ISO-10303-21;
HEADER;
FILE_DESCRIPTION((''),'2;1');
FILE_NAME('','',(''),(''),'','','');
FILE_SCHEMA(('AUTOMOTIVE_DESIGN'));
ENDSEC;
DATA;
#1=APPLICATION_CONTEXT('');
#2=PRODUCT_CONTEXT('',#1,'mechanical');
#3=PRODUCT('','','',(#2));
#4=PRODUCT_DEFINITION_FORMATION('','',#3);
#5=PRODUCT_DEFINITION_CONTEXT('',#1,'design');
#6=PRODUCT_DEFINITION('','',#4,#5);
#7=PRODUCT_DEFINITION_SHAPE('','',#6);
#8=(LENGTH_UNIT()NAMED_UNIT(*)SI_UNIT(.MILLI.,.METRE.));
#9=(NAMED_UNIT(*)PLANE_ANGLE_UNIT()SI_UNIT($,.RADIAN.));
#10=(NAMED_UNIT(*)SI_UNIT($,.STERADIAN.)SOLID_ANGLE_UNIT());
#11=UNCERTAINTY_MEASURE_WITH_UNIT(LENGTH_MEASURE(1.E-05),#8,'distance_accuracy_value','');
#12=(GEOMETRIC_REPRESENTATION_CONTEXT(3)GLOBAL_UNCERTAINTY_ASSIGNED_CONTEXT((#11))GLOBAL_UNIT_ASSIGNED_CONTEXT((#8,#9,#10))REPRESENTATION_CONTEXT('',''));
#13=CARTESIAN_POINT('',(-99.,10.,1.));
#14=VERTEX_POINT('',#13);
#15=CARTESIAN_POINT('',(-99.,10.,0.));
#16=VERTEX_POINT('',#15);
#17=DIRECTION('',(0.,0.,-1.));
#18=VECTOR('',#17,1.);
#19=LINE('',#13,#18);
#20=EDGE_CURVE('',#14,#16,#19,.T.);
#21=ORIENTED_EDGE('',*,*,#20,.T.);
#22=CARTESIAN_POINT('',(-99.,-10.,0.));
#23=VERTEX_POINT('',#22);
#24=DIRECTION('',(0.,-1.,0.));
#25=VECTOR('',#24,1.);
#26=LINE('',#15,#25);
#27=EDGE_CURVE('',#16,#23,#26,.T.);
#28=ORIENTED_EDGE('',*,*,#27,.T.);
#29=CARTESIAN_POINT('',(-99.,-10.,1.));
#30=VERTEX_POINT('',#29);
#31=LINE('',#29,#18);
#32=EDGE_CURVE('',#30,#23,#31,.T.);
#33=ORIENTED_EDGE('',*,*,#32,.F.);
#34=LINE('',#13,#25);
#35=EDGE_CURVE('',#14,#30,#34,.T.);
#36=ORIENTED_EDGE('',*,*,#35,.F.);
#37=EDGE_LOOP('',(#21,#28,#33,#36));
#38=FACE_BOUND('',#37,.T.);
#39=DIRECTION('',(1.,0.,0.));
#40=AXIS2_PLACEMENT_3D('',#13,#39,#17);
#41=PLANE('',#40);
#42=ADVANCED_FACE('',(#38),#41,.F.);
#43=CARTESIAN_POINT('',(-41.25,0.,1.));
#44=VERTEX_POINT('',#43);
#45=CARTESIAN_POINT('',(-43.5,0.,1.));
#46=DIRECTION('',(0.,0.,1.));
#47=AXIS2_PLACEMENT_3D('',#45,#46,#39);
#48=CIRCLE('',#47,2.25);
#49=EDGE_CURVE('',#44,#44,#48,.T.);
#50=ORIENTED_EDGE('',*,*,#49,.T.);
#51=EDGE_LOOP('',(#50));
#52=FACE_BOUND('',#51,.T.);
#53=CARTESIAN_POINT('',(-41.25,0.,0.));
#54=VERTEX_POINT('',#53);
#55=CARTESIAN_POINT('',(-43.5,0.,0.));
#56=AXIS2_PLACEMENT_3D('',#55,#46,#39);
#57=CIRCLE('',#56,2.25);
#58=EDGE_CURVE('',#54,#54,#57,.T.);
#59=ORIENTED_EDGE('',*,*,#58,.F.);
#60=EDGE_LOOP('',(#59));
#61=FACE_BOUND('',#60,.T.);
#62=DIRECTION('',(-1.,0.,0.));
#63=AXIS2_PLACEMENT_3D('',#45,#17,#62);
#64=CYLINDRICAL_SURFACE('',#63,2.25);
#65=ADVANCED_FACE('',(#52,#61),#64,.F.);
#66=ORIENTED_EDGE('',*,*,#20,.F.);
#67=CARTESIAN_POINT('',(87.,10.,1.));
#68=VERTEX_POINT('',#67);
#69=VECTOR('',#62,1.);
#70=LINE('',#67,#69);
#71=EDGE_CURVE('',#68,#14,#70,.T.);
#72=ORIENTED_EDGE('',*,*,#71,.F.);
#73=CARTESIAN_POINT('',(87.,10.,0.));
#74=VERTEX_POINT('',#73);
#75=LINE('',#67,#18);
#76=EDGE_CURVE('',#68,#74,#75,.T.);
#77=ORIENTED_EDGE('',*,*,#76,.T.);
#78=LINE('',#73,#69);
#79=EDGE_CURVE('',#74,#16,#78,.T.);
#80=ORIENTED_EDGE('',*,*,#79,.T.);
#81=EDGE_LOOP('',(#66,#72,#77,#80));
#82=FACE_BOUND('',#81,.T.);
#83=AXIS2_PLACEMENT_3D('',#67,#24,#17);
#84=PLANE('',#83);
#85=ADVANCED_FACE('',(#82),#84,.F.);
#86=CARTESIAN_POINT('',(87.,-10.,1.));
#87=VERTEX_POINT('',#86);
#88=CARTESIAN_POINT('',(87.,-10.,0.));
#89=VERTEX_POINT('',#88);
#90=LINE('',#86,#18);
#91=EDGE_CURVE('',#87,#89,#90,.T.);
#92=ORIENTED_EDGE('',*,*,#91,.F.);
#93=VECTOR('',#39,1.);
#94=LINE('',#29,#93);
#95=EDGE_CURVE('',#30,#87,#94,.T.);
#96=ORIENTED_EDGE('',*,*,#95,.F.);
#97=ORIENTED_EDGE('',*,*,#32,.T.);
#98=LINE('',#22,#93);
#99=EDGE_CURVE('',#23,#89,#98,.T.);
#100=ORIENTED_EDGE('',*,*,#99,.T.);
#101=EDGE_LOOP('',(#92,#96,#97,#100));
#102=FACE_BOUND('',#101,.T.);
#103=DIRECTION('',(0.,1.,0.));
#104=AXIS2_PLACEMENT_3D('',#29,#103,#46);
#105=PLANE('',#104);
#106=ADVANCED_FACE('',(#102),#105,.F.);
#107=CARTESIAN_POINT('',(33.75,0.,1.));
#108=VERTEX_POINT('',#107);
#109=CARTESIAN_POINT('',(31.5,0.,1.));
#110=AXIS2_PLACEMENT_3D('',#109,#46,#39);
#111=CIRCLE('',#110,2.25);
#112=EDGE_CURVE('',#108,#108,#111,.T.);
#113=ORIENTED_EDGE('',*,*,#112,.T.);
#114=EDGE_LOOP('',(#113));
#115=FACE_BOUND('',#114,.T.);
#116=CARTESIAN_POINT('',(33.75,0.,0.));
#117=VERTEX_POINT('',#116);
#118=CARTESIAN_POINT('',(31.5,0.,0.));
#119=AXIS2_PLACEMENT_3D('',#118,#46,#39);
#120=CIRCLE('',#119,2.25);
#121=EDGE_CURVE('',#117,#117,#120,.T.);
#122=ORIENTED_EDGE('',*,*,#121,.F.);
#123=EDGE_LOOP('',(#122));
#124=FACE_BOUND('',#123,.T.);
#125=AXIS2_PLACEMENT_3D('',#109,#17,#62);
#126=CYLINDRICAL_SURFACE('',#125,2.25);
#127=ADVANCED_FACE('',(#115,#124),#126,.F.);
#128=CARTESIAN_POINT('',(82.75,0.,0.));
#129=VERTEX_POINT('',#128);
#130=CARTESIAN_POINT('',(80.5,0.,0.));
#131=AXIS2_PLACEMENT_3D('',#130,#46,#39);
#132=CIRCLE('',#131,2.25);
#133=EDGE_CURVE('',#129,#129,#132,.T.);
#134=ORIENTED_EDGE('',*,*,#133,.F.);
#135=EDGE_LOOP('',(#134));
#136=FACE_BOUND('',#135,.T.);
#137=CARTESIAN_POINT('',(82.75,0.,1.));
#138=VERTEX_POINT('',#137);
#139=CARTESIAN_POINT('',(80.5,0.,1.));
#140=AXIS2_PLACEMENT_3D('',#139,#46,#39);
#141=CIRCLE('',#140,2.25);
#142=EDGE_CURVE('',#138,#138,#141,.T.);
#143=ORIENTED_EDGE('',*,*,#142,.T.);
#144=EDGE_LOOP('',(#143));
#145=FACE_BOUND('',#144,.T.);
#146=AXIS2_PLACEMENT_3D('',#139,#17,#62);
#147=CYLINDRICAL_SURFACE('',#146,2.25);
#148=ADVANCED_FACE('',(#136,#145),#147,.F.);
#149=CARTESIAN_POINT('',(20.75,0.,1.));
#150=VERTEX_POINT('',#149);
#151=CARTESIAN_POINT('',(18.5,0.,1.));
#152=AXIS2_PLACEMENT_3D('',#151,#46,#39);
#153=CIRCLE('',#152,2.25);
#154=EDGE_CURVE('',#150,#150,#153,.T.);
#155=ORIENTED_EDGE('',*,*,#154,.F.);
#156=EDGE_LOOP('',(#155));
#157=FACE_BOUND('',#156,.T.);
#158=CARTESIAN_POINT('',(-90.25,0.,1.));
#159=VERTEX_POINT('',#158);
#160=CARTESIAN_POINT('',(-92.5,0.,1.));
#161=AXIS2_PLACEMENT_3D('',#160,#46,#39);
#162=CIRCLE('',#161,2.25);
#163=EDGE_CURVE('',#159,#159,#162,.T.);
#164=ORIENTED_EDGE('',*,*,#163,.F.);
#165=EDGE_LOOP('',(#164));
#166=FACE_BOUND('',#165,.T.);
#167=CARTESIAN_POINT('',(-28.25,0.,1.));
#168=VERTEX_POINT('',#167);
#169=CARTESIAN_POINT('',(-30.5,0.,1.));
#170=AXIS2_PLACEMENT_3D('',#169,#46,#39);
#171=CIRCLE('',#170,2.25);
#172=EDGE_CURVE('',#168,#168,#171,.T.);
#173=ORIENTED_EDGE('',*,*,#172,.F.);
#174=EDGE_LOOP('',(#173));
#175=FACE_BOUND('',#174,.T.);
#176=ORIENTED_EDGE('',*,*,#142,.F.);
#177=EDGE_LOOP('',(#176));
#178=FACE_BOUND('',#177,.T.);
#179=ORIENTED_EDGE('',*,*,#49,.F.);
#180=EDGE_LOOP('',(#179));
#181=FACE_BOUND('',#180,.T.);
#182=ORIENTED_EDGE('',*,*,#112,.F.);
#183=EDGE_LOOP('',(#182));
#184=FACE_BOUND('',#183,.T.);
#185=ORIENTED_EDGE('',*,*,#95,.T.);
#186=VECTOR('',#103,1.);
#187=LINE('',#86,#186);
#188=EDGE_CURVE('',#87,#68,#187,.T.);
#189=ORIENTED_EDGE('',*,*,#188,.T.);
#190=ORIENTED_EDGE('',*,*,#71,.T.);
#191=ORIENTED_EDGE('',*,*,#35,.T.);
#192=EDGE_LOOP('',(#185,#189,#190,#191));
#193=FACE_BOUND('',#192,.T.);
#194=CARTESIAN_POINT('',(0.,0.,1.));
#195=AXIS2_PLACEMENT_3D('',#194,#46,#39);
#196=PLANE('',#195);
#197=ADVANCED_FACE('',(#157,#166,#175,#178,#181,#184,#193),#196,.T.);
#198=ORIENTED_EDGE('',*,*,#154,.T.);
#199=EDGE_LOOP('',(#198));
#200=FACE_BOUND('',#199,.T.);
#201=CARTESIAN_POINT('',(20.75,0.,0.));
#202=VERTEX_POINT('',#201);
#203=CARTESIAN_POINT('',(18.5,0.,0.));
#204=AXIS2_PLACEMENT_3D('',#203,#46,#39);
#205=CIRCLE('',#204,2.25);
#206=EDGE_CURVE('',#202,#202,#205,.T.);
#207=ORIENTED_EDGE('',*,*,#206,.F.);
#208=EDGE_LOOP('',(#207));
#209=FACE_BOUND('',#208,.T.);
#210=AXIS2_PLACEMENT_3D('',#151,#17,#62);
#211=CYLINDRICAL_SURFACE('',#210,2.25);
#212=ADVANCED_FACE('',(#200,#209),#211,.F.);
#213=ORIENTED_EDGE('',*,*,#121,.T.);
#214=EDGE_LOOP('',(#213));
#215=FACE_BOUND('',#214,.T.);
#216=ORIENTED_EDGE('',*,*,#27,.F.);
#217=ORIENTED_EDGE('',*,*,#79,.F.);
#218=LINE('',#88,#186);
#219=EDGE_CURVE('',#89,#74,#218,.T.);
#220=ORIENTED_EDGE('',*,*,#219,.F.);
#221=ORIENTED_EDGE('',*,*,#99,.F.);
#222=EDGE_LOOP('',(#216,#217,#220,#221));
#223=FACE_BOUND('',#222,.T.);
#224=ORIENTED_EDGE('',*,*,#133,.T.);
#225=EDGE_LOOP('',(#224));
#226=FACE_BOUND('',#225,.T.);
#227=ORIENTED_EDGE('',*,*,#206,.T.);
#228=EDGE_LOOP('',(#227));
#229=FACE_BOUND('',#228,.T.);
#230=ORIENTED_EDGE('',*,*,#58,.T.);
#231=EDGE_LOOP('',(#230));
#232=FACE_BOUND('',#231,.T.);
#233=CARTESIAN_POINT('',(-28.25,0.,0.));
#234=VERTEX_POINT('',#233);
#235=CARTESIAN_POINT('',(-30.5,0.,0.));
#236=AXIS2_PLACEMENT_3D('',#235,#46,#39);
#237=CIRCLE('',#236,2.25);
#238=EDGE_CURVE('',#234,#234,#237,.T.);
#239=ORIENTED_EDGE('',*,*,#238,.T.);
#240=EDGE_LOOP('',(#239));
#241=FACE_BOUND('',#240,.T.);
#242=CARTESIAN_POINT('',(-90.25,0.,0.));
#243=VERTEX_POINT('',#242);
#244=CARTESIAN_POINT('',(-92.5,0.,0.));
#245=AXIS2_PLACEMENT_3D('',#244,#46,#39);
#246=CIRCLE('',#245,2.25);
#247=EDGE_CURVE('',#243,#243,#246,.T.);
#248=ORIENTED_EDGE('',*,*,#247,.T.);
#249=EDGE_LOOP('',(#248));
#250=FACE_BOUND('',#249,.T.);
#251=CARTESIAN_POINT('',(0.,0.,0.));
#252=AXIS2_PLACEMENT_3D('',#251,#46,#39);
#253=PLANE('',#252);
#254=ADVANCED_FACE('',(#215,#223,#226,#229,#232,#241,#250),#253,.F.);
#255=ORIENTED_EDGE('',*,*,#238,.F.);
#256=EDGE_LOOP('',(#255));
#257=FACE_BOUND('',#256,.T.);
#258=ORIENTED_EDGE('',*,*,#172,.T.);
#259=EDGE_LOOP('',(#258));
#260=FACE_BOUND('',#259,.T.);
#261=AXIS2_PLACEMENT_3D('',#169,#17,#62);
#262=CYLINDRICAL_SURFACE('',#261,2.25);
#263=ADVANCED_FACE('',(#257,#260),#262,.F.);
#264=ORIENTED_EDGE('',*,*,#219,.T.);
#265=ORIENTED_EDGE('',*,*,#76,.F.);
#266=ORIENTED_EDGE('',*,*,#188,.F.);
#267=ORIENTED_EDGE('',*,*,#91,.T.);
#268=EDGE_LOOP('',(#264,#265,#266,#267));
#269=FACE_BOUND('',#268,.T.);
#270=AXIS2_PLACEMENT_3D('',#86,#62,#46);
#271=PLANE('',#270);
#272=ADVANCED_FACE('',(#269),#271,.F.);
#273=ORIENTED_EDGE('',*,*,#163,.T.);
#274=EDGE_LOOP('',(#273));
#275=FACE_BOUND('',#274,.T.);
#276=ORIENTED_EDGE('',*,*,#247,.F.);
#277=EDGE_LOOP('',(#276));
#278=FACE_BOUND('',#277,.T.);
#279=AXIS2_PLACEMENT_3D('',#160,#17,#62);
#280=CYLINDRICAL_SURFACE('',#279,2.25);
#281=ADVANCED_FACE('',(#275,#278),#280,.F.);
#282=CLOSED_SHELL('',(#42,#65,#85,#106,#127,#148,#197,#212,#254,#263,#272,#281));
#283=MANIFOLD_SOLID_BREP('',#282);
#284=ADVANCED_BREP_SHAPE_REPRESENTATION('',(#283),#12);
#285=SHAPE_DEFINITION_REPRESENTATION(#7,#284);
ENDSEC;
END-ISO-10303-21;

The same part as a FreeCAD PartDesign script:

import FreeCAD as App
import Part
import Sketcher
from FreeCAD import Vector
Q = App.Units.Quantity


def add_polygon(sketch, points):
    """Adds a closed chain of lines whose ends are joined by coincident constraints."""
    first, n = sketch.GeometryCount, len(points)
    for a, b in zip(points, points[1:] + points[:1]):
        sketch.addGeometry(Part.LineSegment(App.Vector(*a, 0), App.Vector(*b, 0)), False)
    for i in range(n):
        sketch.addConstraint(Sketcher.Constraint("Coincident", first + i, 2, first + (i + 1) % n, 1))

doc = App.newDocument("Part")
body = doc.addObject("PartDesign::Body", "Body")

sketch1 = body.newObject("Sketcher::SketchObject", "Sketch")
sketch1.AttachmentSupport = (doc.getObject("XY_Plane"), [""])
sketch1.MapMode = "FlatFace"
add_polygon(sketch1, [(-99, 10), (-99, -10), (87, -10), (87, 10)])
sketch1.addGeometry(Part.Circle(Vector(-92.5, 0, 0), Vector(0, 0, 1), 2.2), False)
sketch1.addGeometry(Part.Circle(Vector(-43.5, 0, 0), Vector(0, 0, 1), 2.2), False)
sketch1.addGeometry(Part.Circle(Vector(-30.5, 0, 0), Vector(0, 0, 1), 2.2), False)
sketch1.addGeometry(Part.Circle(Vector(18.5, 0, 0), Vector(0, 0, 1), 2.2), False)
sketch1.addGeometry(Part.Circle(Vector(31.5, 0, 0), Vector(0, 0, 1), 2.2), False)
sketch1.addGeometry(Part.Circle(Vector(80.5, 0, 0), Vector(0, 0, 1), 2.2), False)
sketch1.addConstraint(Sketcher.Constraint("Vertical", 0))
sketch1.addConstraint(Sketcher.Constraint("Horizontal", 1))
sketch1.addConstraint(Sketcher.Constraint("Vertical", 2))
sketch1.addConstraint(Sketcher.Constraint("Horizontal", 3))
sketch1.addConstraint(Sketcher.Constraint("Equal", 4, 5))
sketch1.addConstraint(Sketcher.Constraint("Equal", 5, 6))
sketch1.addConstraint(Sketcher.Constraint("Equal", 6, 7))
sketch1.addConstraint(Sketcher.Constraint("Equal", 7, 8))
sketch1.addConstraint(Sketcher.Constraint("Equal", 8, 9))
sketch1.addConstraint(Sketcher.Constraint("PointOnObject", 4, 3, -1))
sketch1.addConstraint(Sketcher.Constraint("PointOnObject", 5, 3, -1))
sketch1.addConstraint(Sketcher.Constraint("PointOnObject", 6, 3, -1))
sketch1.addConstraint(Sketcher.Constraint("PointOnObject", 7, 3, -1))
sketch1.addConstraint(Sketcher.Constraint("PointOnObject", 8, 3, -1))
sketch1.addConstraint(Sketcher.Constraint("PointOnObject", 9, 3, -1))
sketch1.addConstraint(Sketcher.Constraint("Diameter", 4, Q("4.5 mm")))
sketch1.addConstraint(Sketcher.Constraint("DistanceX", 1, 1, 1, 2, Q("186 mm")))
sketch1.addConstraint(Sketcher.Constraint("DistanceY", 0, 2, 0, 1, Q("20 mm")))
sketch1.addConstraint(Sketcher.Constraint("DistanceX", 0, 2, -1, 1, Q("99 mm")))
sketch1.addConstraint(Sketcher.Constraint("DistanceY", 0, 2, -1, 1, Q("10 mm")))
sketch1.addConstraint(Sketcher.Constraint("DistanceX", 4, 3, 5, 3, Q("49 mm")))
sketch1.addConstraint(Sketcher.Constraint("DistanceX", 5, 3, 6, 3, Q("13 mm")))
sketch1.addConstraint(Sketcher.Constraint("DistanceX", 6, 3, 7, 3, Q("49 mm")))
sketch1.addConstraint(Sketcher.Constraint("DistanceX", 7, 3, 8, 3, Q("13 mm")))
sketch1.addConstraint(Sketcher.Constraint("DistanceX", 8, 3, 9, 3, Q("49 mm")))
sketch1.addConstraint(Sketcher.Constraint("DistanceX", 4, 3, -1, 1, Q("92.5 mm")))
pad1 = body.newObject("PartDesign::Pad", "Pad")
pad1.Profile = sketch1
pad1.Length = 1

doc.recompute()
